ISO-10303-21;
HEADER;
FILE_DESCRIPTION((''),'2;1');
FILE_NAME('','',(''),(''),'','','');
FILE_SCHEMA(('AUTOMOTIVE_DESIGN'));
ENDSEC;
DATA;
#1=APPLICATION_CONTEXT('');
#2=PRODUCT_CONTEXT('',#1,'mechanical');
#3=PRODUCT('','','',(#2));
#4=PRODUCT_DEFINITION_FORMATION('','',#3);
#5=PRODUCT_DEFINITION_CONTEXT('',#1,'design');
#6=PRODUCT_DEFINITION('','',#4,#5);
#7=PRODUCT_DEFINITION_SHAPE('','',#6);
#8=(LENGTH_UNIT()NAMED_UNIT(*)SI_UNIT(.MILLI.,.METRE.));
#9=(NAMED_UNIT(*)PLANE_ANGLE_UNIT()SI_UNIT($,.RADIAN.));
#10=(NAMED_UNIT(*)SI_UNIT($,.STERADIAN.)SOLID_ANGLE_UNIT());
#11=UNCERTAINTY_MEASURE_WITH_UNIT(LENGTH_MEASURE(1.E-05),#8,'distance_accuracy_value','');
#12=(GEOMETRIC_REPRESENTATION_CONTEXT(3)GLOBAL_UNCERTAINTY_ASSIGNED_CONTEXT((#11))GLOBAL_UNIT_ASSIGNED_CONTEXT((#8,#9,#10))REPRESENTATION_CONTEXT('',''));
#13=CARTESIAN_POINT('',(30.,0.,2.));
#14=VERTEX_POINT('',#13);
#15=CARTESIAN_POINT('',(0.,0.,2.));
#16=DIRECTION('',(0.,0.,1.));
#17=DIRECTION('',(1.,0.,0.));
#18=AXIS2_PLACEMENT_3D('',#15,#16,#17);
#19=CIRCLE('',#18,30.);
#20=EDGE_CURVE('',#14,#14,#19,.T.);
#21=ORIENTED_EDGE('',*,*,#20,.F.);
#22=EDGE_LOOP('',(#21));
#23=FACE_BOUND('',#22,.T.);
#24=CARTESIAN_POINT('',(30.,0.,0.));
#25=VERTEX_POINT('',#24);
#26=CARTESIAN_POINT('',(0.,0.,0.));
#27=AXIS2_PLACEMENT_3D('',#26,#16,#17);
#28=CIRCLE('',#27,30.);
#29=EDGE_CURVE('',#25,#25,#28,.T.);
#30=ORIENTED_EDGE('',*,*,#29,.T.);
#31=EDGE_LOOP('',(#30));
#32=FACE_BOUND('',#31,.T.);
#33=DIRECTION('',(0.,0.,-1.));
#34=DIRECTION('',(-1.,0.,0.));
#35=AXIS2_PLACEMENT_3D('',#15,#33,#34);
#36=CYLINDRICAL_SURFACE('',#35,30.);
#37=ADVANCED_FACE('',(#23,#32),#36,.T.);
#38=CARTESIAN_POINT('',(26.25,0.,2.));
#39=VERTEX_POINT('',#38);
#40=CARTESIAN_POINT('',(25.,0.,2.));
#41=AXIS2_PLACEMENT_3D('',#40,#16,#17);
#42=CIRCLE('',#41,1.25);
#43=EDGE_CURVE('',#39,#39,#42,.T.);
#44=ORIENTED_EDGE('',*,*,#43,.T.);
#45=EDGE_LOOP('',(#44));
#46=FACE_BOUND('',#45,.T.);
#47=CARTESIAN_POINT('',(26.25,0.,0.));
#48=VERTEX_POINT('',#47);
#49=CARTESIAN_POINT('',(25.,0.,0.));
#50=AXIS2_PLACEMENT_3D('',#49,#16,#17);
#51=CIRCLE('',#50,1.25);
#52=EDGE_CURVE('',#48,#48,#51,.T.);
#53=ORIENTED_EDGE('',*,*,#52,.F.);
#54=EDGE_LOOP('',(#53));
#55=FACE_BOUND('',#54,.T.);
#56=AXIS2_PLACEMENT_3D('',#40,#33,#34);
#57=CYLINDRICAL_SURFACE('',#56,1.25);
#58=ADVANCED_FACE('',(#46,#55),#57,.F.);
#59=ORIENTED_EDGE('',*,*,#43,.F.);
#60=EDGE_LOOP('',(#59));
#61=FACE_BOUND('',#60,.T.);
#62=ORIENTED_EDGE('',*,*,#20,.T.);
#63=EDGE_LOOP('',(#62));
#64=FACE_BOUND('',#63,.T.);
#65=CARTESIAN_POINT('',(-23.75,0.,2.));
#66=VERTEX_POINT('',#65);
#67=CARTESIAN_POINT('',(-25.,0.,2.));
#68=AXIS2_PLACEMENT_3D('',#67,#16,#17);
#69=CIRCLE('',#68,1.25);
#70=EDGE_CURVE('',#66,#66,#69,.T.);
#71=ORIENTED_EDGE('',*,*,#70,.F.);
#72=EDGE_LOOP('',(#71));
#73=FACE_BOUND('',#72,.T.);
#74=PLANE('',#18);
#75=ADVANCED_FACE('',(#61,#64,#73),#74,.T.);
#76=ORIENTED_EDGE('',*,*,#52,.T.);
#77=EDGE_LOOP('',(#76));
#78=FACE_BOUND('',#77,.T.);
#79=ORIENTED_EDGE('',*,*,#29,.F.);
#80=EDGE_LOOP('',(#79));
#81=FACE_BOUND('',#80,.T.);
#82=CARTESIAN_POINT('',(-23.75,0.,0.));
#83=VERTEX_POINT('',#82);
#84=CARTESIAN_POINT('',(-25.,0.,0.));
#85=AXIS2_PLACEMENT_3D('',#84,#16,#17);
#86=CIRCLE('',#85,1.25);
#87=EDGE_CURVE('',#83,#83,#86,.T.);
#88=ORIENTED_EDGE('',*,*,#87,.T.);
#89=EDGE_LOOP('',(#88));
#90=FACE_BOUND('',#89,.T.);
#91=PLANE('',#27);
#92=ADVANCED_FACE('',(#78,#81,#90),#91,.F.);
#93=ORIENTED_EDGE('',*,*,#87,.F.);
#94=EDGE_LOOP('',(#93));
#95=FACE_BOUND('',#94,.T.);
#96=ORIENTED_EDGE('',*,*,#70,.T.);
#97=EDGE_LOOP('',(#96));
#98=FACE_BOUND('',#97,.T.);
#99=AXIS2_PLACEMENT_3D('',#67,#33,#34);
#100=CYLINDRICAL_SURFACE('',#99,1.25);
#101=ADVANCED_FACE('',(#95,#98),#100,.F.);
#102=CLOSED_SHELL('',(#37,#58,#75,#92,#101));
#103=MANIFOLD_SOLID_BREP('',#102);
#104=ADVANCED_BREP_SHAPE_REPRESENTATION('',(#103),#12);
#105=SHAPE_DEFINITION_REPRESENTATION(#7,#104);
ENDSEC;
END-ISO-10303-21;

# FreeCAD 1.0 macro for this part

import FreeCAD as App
import Part
import Sketcher

V = App.Vector

doc = App.newDocument("Part")
body = doc.addObject("PartDesign::Body", "Body")

# Sketch on XY plane
sketch1 = body.newObject("Sketcher::SketchObject", "Sketch")
sketch1.AttachmentSupport = (doc.getObject("XY_Plane"), [""])
sketch1.MapMode = "FlatFace"
sketch1.addGeometry([
    Part.Circle(V(0, 0, 0), V(0, 0, 1), 30),
    Part.Circle(V(-25, 0, 0), V(0, 0, 1), 1.2),
    Part.Circle(V(25, 0, 0), V(0, 0, 1), 1.2),
], False)
sketch1.addConstraint([
    Sketcher.Constraint("Coincident", 0, 3, -1, 1),
    Sketcher.Constraint("Equal", 1, 2),
    Sketcher.Constraint("Symmetric", 1, 3, 2, 3, -1, 1),
    Sketcher.Constraint("PointOnObject", 1, 3, -1),
    Sketcher.Constraint("Diameter", 0, 60.0),
    Sketcher.Constraint("Diameter", 1, 2.5),
    Sketcher.Constraint("DistanceX", 1, 3, -1, 1, 25.0),
])
pad1 = body.newObject("PartDesign::Pad", "Pad")
pad1.Profile = sketch1
pad1.Length = 2

doc.recompute()
